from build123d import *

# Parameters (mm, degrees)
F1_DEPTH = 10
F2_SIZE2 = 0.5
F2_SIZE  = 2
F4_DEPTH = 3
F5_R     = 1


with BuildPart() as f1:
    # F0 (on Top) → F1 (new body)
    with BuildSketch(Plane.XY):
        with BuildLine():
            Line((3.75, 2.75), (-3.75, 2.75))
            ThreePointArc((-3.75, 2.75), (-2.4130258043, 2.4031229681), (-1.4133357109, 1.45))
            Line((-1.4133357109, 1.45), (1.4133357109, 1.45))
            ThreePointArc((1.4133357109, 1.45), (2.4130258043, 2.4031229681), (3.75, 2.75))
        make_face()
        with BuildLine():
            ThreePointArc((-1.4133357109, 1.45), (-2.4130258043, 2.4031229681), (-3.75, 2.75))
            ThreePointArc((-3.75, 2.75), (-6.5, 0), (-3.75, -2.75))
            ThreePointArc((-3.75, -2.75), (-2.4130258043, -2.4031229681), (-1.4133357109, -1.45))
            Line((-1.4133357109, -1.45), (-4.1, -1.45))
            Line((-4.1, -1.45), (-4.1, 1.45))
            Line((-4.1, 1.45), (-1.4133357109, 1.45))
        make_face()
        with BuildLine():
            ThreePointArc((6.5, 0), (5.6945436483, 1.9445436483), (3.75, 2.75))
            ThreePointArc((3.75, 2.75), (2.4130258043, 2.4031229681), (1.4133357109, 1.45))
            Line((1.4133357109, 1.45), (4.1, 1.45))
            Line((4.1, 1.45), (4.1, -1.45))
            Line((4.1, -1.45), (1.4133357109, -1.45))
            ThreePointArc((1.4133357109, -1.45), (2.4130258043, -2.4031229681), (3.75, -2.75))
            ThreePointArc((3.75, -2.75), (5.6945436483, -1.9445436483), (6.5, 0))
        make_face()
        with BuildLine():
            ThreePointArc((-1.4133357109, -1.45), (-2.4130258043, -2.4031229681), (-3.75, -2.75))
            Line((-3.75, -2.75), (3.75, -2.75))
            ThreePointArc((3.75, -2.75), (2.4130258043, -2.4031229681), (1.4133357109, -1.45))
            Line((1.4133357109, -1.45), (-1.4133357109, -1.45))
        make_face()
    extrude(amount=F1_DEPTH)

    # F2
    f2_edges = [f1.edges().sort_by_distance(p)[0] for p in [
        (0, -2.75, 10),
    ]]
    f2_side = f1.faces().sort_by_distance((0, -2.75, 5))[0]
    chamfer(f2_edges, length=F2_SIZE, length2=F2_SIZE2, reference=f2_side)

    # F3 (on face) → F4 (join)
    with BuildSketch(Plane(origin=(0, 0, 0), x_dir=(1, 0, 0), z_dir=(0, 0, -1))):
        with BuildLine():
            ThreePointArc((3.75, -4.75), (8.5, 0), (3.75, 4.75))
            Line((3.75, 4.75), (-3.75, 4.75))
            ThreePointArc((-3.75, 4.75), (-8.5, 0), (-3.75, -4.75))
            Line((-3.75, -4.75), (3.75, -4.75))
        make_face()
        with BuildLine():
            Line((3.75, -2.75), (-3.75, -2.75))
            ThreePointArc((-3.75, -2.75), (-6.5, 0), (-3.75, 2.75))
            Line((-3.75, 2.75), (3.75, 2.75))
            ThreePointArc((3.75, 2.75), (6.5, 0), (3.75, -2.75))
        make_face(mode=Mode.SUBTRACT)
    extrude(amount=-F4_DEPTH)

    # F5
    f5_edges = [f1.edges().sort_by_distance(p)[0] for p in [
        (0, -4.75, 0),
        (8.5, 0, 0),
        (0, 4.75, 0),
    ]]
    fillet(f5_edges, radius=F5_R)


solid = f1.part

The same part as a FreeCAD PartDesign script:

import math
import FreeCAD as App
import Part
import Sketcher


def edges_at(feature, points):
    """Names of the edges that pass closest to the given points."""
    edges = feature.Shape.Edges
    near = lambda p: min(range(len(edges)), key=lambda i: edges[i].distToShape(Part.Vertex(*p))[0])
    return sorted({f"Edge{near(p) + 1}" for p in points})

doc = App.newDocument("Part")
params = doc.addObject("Spreadsheet::Sheet", "Params")
for row, (alias, value) in enumerate([
    ("sketch1_radius", "2.75 mm"),
    ("sketch1_width", "7.5 mm"),
    ("sketch1_width2", "8.2 mm"),
    ("sketch1_height", "2.9 mm"),
    ("pad1_length", "10 mm"),
    ("chamfer_size", "2 mm"),
    ("chamfer_size2", "0.5 mm"),
    ("sketch2_radius", "4.75 mm"),
    ("sketch2_radius2", "2.75 mm"),
    ("sketch2_width", "7.5 mm"),
    ("pad2_length", "3 mm"),
    ("fillet_radius", "1 mm"),
], start=1):
    params.set(f"A{row}", alias)
    params.set(f"B{row}", "=" + value)
    params.setAlias(f"B{row}", alias)

body = doc.addObject("PartDesign::Body", "Body")

sketch1 = doc.addObject("Sketcher::SketchObject", "Sketch")
body.addObject(sketch1)
sketch1.AttachmentSupport = (doc.XY_Plane, [""])
sketch1.MapMode = "FlatFace"
sketch1.addGeometry(Part.LineSegment(App.Vector(3.8, 2.8, 0), App.Vector(-3.8, 2.8, 0)), False)
sketch1.addGeometry(Part.ArcOfCircle(Part.Circle(App.Vector(-3.8, 0, 0), App.Vector(0, 0, 1), 2.8), math.radians(90), math.radians(270)), False)
sketch1.addGeometry(Part.LineSegment(App.Vector(-3.8, -2.8, 0), App.Vector(3.8, -2.8, 0)), False)
sketch1.addGeometry(Part.ArcOfCircle(Part.Circle(App.Vector(3.8, 0, 0), App.Vector(0, 0, 1), 2.8), math.radians(-90), math.radians(0)), False)
sketch1.addGeometry(Part.ArcOfCircle(Part.Circle(App.Vector(3.8, 0, 0), App.Vector(0, 0, 1), 2.8), math.radians(0), math.radians(90)), False)
sketch1.addGeometry(Part.LineSegment(App.Vector(-4.1, -1.4, 0), App.Vector(-4.1, 1.4, 0)), False)
sketch1.addGeometry(Part.LineSegment(App.Vector(-4.1, 1.4, 0), App.Vector(4.1, 1.4, 0)), False)
sketch1.addGeometry(Part.LineSegment(App.Vector(4.1, 1.4, 0), App.Vector(4.1, -1.4, 0)), False)
sketch1.addGeometry(Part.LineSegment(App.Vector(4.1, -1.4, 0), App.Vector(-4.1, -1.4, 0)), False)
sketch1.addConstraint(Sketcher.Constraint("Tangent", 0, 2, 1, 1))
sketch1.addConstraint(Sketcher.Constraint("Tangent", 1, 2, 2, 1))
sketch1.addConstraint(Sketcher.Constraint("Tangent", 2, 2, 3, 1))
sketch1.addConstraint(Sketcher.Constraint("Tangent", 3, 2, 4, 1))
sketch1.addConstraint(Sketcher.Constraint("Tangent", 4, 2, 0, 1))
sketch1.addConstraint(Sketcher.Constraint("Coincident", 5, 2, 6, 1))
sketch1.addConstraint(Sketcher.Constraint("Coincident", 6, 2, 7, 1))
sketch1.addConstraint(Sketcher.Constraint("Coincident", 7, 2, 8, 1))
sketch1.addConstraint(Sketcher.Constraint("Coincident", 8, 2, 5, 1))
sketch1.addConstraint(Sketcher.Constraint("Horizontal", 0))
sketch1.addConstraint(Sketcher.Constraint("Horizontal", 2))
sketch1.addConstraint(Sketcher.Constraint("Vertical", 5))
sketch1.addConstraint(Sketcher.Constraint("Horizontal", 6))
sketch1.addConstraint(Sketcher.Constraint("Vertical", 7))
sketch1.addConstraint(Sketcher.Constraint("Horizontal", 8))
sketch1.addConstraint(Sketcher.Constraint("Equal", 1, 3))
sketch1.addConstraint(Sketcher.Constraint("Symmetric", 1, 3, 3, 3, -1, 1))
sketch1.addConstraint(Sketcher.Constraint("Symmetric", 5, 2, 7, 2, -1, 1))
sketch1.addConstraint(Sketcher.Constraint("PointOnObject", 3, 2, -1))
sketch1.addConstraint(Sketcher.Constraint("Radius", 1, 2.75))
sketch1.addConstraint(Sketcher.Constraint("DistanceX", 0, 2, 0, 1, 7.5))
sketch1.addConstraint(Sketcher.Constraint("DistanceX", 6, 1, 6, 2, 8.2))
sketch1.addConstraint(Sketcher.Constraint("DistanceY", 5, 1, 5, 2, 2.9))
sketch1.setExpression("Constraints[19]", "Params.sketch1_radius")
sketch1.setExpression("Constraints[20]", "Params.sketch1_width")
sketch1.setExpression("Constraints[21]", "Params.sketch1_width2")
sketch1.setExpression("Constraints[22]", "Params.sketch1_height")
pad1 = doc.addObject("PartDesign::Pad", "Pad")
body.addObject(pad1)
pad1.Profile = sketch1
pad1.setExpression("Length", "Params.pad1_length")
doc.recompute()

chamfer = doc.addObject("PartDesign::Chamfer", "Chamfer")
body.addObject(chamfer)
chamfer.Base = (pad1, edges_at(pad1, [(0, -2.75, 10)]))
chamfer.ChamferType = "Two distances"
chamfer.setExpression("Size", "Params.chamfer_size")
chamfer.setExpression("Size2", "Params.chamfer_size2")

sketch2 = doc.addObject("Sketcher::SketchObject", "Sketch001")
body.addObject(sketch2)
sketch2.AttachmentSupport = (doc.XY_Plane, [""])
sketch2.MapMode = "FlatFace"
sketch2.addGeometry(Part.ArcOfCircle(Part.Circle(App.Vector(3.8, 0, 0), App.Vector(0, 0, 1), 4.8), math.radians(-90), math.radians(90)), False)
sketch2.addGeometry(Part.LineSegment(App.Vector(3.8, -4.8, 0), App.Vector(-3.8, -4.8, 0)), False)
sketch2.addGeometry(Part.ArcOfCircle(Part.Circle(App.Vector(-3.8, 0, 0), App.Vector(0, 0, 1), 4.8), math.radians(90), math.radians(270)), False)
sketch2.addGeometry(Part.LineSegment(App.Vector(-3.8, 4.8, 0), App.Vector(3.8, 4.8, 0)), False)
sketch2.addGeometry(Part.ArcOfCircle(Part.Circle(App.Vector(3.8, 0, 0), App.Vector(0, 0, 1), 2.8), math.radians(-90), math.radians(90)), False)
sketch2.addGeometry(Part.LineSegment(App.Vector(3.8, 2.8, 0), App.Vector(-3.8, 2.8, 0)), False)
sketch2.addGeometry(Part.ArcOfCircle(Part.Circle(App.Vector(-3.8, 0, 0), App.Vector(0, 0, 1), 2.8), math.radians(90), math.radians(270)), False)
sketch2.addGeometry(Part.LineSegment(App.Vector(-3.8, -2.8, 0), App.Vector(3.8, -2.8, 0)), False)
sketch2.addConstraint(Sketcher.Constraint("Tangent", 0, 1, 1, 1))
sketch2.addConstraint(Sketcher.Constraint("Tangent", 1, 2, 2, 2))
sketch2.addConstraint(Sketcher.Constraint("Tangent", 2, 1, 3, 1))
sketch2.addConstraint(Sketcher.Constraint("Tangent", 3, 2, 0, 2))
sketch2.addConstraint(Sketcher.Constraint("Tangent", 4, 2, 5, 1))
sketch2.addConstraint(Sketcher.Constraint("Tangent", 5, 2, 6, 1))
sketch2.addConstraint(Sketcher.Constraint("Tangent", 6, 2, 7, 1))
sketch2.addConstraint(Sketcher.Constraint("Tangent", 7, 2, 4, 1))
sketch2.addConstraint(Sketcher.Constraint("Horizontal", 1))
sketch2.addConstraint(Sketcher.Constraint("Horizontal", 3))
sketch2.addConstraint(Sketcher.Constraint("Horizontal", 5))
sketch2.addConstraint(Sketcher.Constraint("Horizontal", 7))
sketch2.addConstraint(Sketcher.Constraint("Coincident", 4, 3, 0, 3))
sketch2.addConstraint(Sketcher.Constraint("Symmetric", 0, 3, 2, 3, -1, 1))
sketch2.addConstraint(Sketcher.Constraint("Vertical", 6, 3, 1, 2))
sketch2.addConstraint(Sketcher.Constraint("Radius", 0, 4.75))
sketch2.addConstraint(Sketcher.Constraint("Radius", 4, 2.75))
sketch2.addConstraint(Sketcher.Constraint("DistanceX", 1, 2, 1, 1, 7.5))
sketch2.setExpression("Constraints[15]", "Params.sketch2_radius")
sketch2.setExpression("Constraints[16]", "Params.sketch2_radius2")
sketch2.setExpression("Constraints[17]", "Params.sketch2_width")
pad2 = doc.addObject("PartDesign::Pad", "Pad001")
body.addObject(pad2)
pad2.Profile = sketch2
pad2.setExpression("Length", "Params.pad2_length")
doc.recompute()

fillet = doc.addObject("PartDesign::Fillet", "Fillet")
body.addObject(fillet)
fillet.Base = (pad2, edges_at(pad2, [(0, -4.75, 0), (8.5, 0, 0), (0, 4.75, 0)]))
fillet.setExpression("Radius", "Params.fillet_radius")

doc.recompute()
